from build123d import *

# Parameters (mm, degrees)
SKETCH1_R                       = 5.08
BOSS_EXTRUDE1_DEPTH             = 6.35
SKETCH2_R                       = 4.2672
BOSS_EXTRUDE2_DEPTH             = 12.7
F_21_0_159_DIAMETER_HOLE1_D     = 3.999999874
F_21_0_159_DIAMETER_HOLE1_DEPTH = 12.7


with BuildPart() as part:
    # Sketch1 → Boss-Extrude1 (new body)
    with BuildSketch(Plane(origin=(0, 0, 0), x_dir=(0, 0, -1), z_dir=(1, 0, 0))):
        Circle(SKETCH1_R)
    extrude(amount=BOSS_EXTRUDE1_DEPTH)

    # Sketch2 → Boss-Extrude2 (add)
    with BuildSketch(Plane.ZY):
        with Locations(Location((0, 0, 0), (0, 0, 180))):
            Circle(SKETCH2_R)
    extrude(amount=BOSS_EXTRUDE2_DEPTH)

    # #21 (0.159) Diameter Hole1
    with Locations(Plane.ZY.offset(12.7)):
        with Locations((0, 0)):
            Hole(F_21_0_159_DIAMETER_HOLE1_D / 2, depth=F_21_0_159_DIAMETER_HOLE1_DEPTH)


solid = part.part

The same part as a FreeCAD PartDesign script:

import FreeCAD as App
import Part
import Sketcher
from FreeCAD import Vector
Q = App.Units.Quantity

doc = App.newDocument("Part")
params = doc.addObject("Spreadsheet::Sheet", "Params")
for row, (alias, value) in enumerate([
    ("sketch1_diameter", "0.4 in"),
    ("pad1_length", "0.25 in"),
    ("sketch2_diameter", "0.336 in"),
    ("pad2_length", "0.5 in"),
    ("hole_diameter", "4 mm"),
    ("hole_depth", "0.5 in"),
], start=1):
    params.set(f"A{row}", alias)
    params.set(f"B{row}", "=" + value)
    params.setAlias(f"B{row}", alias)

body = doc.addObject("PartDesign::Body", "Body")

# Sketch on YZ plane
sketch1 = doc.addObject("Sketcher::SketchObject", "Sketch")
body.addObject(sketch1)
sketch1.AttachmentSupport = (doc.YZ_Plane, [""])
sketch1.MapMode = "FlatFace"
sketch1.addGeometry(Part.Circle(Vector(0, 0, 0), Vector(0, 0, 1), 5), False)
sketch1.addConstraint(Sketcher.Constraint("Coincident", 0, 3, -1, 1))
sketch1.addConstraint(Sketcher.Constraint("Diameter", 0, Q("0.4 in")))
sketch1.setExpression("Constraints[1]", "Params.sketch1_diameter")
pad1 = doc.addObject("PartDesign::Pad", "Pad")
body.addObject(pad1)
pad1.Profile = sketch1
pad1.setExpression("Length", "Params.pad1_length")

# Sketch on YZ plane
sketch2 = doc.addObject("Sketcher::SketchObject", "Sketch001")
body.addObject(sketch2)
sketch2.AttachmentSupport = (doc.YZ_Plane, [""])
sketch2.MapMode = "FlatFace"
sketch2.addGeometry(Part.Circle(Vector(0, 0, 0), Vector(0, 0, 1), 4.3), False)
sketch2.addConstraint(Sketcher.Constraint("Coincident", 0, 3, -1, 1))
sketch2.addConstraint(Sketcher.Constraint("Diameter", 0, Q("0.336 in")))
sketch2.setExpression("Constraints[1]", "Params.sketch2_diameter")
pad2 = doc.addObject("PartDesign::Pad", "Pad001")
body.addObject(pad2)
pad2.Profile = sketch2
pad2.setExpression("Length", "Params.pad2_length")
pad2.Reversed = True

# Sketch on YZ plane
sketch3 = doc.addObject("Sketcher::SketchObject", "Sketch002")
body.addObject(sketch3)
sketch3.AttachmentSupport = (doc.YZ_Plane, [""])
sketch3.MapMode = "FlatFace"
sketch3.AttachmentOffset = App.Placement(Vector(0, 0, -0.5 * 25.4), App.Rotation())
sketch3.addGeometry(Part.Circle(Vector(0, 0, 0), Vector(0, 0, 1), 2), False)
sketch3.addConstraint(Sketcher.Constraint("Coincident", 0, 3, -1, 1))
sketch3.addConstraint(Sketcher.Constraint("Diameter", 0, Q("4 mm")))
doc.recompute()
hole = doc.addObject("PartDesign::Hole", "Hole")
body.addObject(hole)
hole.Profile = sketch3
hole.ThreadType = "None"
hole.setExpression("Diameter", "Params.hole_diameter")
hole.DepthType = "Dimension"
hole.setExpression("Depth", "Params.hole_depth")
hole.DrillPoint = "Flat"
hole.Reversed = True

doc.recompute()
